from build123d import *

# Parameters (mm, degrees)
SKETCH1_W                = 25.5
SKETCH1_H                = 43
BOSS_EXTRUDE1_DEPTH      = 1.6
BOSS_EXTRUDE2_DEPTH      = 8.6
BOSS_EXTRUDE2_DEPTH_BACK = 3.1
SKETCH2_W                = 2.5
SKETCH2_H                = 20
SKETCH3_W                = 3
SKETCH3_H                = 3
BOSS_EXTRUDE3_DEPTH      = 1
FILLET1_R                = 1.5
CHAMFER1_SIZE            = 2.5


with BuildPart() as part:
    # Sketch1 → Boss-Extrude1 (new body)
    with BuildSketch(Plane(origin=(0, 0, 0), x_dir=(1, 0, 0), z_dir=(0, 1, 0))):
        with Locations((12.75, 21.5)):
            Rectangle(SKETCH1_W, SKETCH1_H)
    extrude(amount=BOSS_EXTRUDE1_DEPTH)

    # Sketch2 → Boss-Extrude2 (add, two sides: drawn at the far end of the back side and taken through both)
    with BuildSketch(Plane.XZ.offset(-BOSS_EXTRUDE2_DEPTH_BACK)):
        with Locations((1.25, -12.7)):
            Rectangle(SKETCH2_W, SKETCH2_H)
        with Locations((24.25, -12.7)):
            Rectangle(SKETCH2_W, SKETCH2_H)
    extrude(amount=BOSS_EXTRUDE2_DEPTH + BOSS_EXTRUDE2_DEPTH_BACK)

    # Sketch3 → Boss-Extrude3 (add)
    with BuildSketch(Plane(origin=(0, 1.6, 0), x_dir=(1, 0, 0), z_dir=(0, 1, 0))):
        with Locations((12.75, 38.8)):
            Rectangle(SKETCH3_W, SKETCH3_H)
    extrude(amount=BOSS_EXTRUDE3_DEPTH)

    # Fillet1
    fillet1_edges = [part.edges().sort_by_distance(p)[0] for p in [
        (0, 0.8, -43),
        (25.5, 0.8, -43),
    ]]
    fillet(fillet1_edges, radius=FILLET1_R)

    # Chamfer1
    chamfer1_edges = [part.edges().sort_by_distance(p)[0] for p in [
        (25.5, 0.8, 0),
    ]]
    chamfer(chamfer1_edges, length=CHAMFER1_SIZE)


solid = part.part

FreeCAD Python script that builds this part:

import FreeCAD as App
import Part
import Sketcher
from FreeCAD import Vector


def edges_at(feature, points):
    """Names of the edges that pass closest to the given points."""
    edges = feature.Shape.Edges
    near = lambda p: min(range(len(edges)), key=lambda i: edges[i].distToShape(Part.Vertex(*p))[0])
    return sorted({f"Edge{near(p) + 1}" for p in points})

doc = App.newDocument("Part")
params = doc.addObject("Spreadsheet::Sheet", "Params")
for row, (alias, value) in enumerate([
    ("sketch1_height", "43 mm"),
    ("sketch1_width", "25.5 mm"),
    ("pad1_length", "1.6 mm"),
    ("sketch2_height", "20 mm"),
    ("sketch2_width", "2.5 mm"),
    ("pad2_length", "8.6 mm"),
    ("pad2_length2", "3.1 mm"),
    ("sketch3_width", "3 mm"),
    ("pad3_length", "1 mm"),
    ("fillet_radius", "1.5 mm"),
    ("chamfer_size", "2.5 mm"),
], start=1):
    params.set(f"A{row}", alias)
    params.set(f"B{row}", "=" + value)
    params.setAlias(f"B{row}", alias)

body = doc.addObject("PartDesign::Body", "Body")

# Sketch on XZ plane
sketch1 = body.newObject("Sketcher::SketchObject", "Sketch")
sketch1.AttachmentSupport = (doc.getObject("XZ_Plane"), [""])
sketch1.MapMode = "FlatFace"
sketch1.addGeometry([
    Part.LineSegment(Vector(0, -43, 0), Vector(0, 0, 0)),
    Part.LineSegment(Vector(0, 0, 0), Vector(26, 0, 0)),
    Part.LineSegment(Vector(26, 0, 0), Vector(26, -43, 0)),
    Part.LineSegment(Vector(26, -43, 0), Vector(0, -43, 0)),
], False)
sketch1.addConstraint([
    Sketcher.Constraint("Coincident", 0, 2, 1, 1),
    Sketcher.Constraint("Coincident", 1, 2, 2, 1),
    Sketcher.Constraint("Coincident", 2, 2, 3, 1),
    Sketcher.Constraint("Coincident", 3, 2, 0, 1),
    Sketcher.Constraint("Vertical", 0),
    Sketcher.Constraint("Horizontal", 1),
    Sketcher.Constraint("Vertical", 2),
    Sketcher.Constraint("Horizontal", 3),
    Sketcher.Constraint("Coincident", 0, 2, -1, 1),
    Sketcher.Constraint("DistanceY", 0, 1, 0, 2, 43.0),
    Sketcher.Constraint("DistanceX", 1, 1, 1, 2, 25.5),
])
sketch1.setExpression("Constraints[9]", "Params.sketch1_height")
sketch1.setExpression("Constraints[10]", "Params.sketch1_width")
pad1 = body.newObject("PartDesign::Pad", "Pad")
pad1.Profile = sketch1
pad1.setExpression("Length", "Params.pad1_length")
pad1.Reversed = True

# Sketch on XZ plane
sketch2 = body.newObject("Sketcher::SketchObject", "Sketch001")
sketch2.AttachmentSupport = (doc.getObject("XZ_Plane"), [""])
sketch2.MapMode = "FlatFace"
sketch2.addGeometry([
    Part.LineSegment(Vector(0, -2.7, 0), Vector(0, -22.7, 0)),  # 0
    Part.LineSegment(Vector(0, -22.7, 0), Vector(2.5, -22.7, 0)),  # 1
    Part.LineSegment(Vector(2.5, -22.7, 0), Vector(2.5, -2.7, 0)),  # 2
    Part.LineSegment(Vector(2.5, -2.7, 0), Vector(0, -2.7, 0)),  # 3
    Part.LineSegment(Vector(23, -2.7, 0), Vector(23, -22.7, 0)),  # 4
    Part.LineSegment(Vector(23, -22.7, 0), Vector(25.5, -22.7, 0)),  # 5
    Part.LineSegment(Vector(25.5, -22.7, 0), Vector(25.5, -2.7, 0)),  # 6
    Part.LineSegment(Vector(25.5, -2.7, 0), Vector(23, -2.7, 0)),  # 7
], False)
sketch2.addConstraint([
    Sketcher.Constraint("Coincident", 0, 2, 1, 1),
    Sketcher.Constraint("Coincident", 1, 2, 2, 1),
    Sketcher.Constraint("Coincident", 2, 2, 3, 1),
    Sketcher.Constraint("Coincident", 3, 2, 0, 1),
    Sketcher.Constraint("Coincident", 4, 2, 5, 1),
    Sketcher.Constraint("Coincident", 5, 2, 6, 1),
    Sketcher.Constraint("Coincident", 6, 2, 7, 1),
    Sketcher.Constraint("Coincident", 7, 2, 4, 1),
    Sketcher.Constraint("Vertical", 0),
    Sketcher.Constraint("Horizontal", 1),
    Sketcher.Constraint("Vertical", 2),
    Sketcher.Constraint("Horizontal", 3),
    Sketcher.Constraint("Vertical", 4),
    Sketcher.Constraint("Horizontal", 5),
    Sketcher.Constraint("Vertical", 6),
    Sketcher.Constraint("Horizontal", 7),
    Sketcher.Constraint("PointOnObject", 0, 2, -2),
    Sketcher.Constraint("Horizontal", 1, 2, 4, 2),
    Sketcher.Constraint("Horizontal", 3, 2, 6, 2),
    Sketcher.Constraint("Equal", 3, 5),
    Sketcher.Constraint("DistanceY", 0, 2, 0, 1, 20.0),
    Sketcher.Constraint("DistanceX", 1, 1, 1, 2, 2.5),
    Sketcher.Constraint("DistanceX", -1, 1, 4, 2, 23.0),
    Sketcher.Constraint("DistanceY", 0, 2, -1, 1, 22.7),
])
sketch2.setExpression("Constraints[20]", "Params.sketch2_height")
sketch2.setExpression("Constraints[21]", "Params.sketch2_width")
pad2 = body.newObject("PartDesign::Pad", "Pad001")
pad2.Profile = sketch2
pad2.Type = "TwoLengths"
pad2.setExpression("Length", "Params.pad2_length")
pad2.setExpression("Length2", "Params.pad2_length2")

# Sketch on XZ plane
sketch3 = body.newObject("Sketcher::SketchObject", "Sketch002")
sketch3.AttachmentSupport = (doc.getObject("XZ_Plane"), [""])
sketch3.MapMode = "FlatFace"
sketch3.AttachmentOffset = App.Placement(Vector(0, 0, -1.6), App.Rotation())
sketch3.addGeometry([
    Part.LineSegment(Vector(11.2, -40.3, 0), Vector(11.2, -37.3, 0)),
    Part.LineSegment(Vector(11.2, -37.3, 0), Vector(14.2, -37.3, 0)),
    Part.LineSegment(Vector(14.2, -37.3, 0), Vector(14.2, -40.3, 0)),
    Part.LineSegment(Vector(14.2, -40.3, 0), Vector(11.2, -40.3, 0)),
], False)
sketch3.addConstraint([
    Sketcher.Constraint("Coincident", 0, 2, 1, 1),
    Sketcher.Constraint("Coincident", 1, 2, 2, 1),
    Sketcher.Constraint("Coincident", 2, 2, 3, 1),
    Sketcher.Constraint("Coincident", 3, 2, 0, 1),
    Sketcher.Constraint("Vertical", 0),
    Sketcher.Constraint("Horizontal", 1),
    Sketcher.Constraint("Vertical", 2),
    Sketcher.Constraint("Horizontal", 3),
    Sketcher.Constraint("Equal", 3, 0),
    Sketcher.Constraint("DistanceX", 1, 1, 1, 2, 3.0),
    Sketcher.Constraint("DistanceY", 0, 2, -1, 1, 37.3),
    Sketcher.Constraint("DistanceX", -1, 1, 0, 2, 11.25),
])
sketch3.setExpression("Constraints[9]", "Params.sketch3_width")
pad3 = body.newObject("PartDesign::Pad", "Pad002")
pad3.Profile = sketch3
pad3.setExpression("Length", "Params.pad3_length")
pad3.Reversed = True
doc.recompute()

fillet = body.newObject("PartDesign::Fillet", "Fillet")
fillet.Base = (pad3, edges_at(pad3, [(0, 0.8, -43), (25.5, 0.8, -43)]))
fillet.setExpression("Radius", "Params.fillet_radius")
doc.recompute()

chamfer = body.newObject("PartDesign::Chamfer", "Chamfer")
chamfer.Base = (fillet, edges_at(fillet, [(25.5, 0.8, 0)]))
chamfer.setExpression("Size", "Params.chamfer_size")

doc.recompute()
